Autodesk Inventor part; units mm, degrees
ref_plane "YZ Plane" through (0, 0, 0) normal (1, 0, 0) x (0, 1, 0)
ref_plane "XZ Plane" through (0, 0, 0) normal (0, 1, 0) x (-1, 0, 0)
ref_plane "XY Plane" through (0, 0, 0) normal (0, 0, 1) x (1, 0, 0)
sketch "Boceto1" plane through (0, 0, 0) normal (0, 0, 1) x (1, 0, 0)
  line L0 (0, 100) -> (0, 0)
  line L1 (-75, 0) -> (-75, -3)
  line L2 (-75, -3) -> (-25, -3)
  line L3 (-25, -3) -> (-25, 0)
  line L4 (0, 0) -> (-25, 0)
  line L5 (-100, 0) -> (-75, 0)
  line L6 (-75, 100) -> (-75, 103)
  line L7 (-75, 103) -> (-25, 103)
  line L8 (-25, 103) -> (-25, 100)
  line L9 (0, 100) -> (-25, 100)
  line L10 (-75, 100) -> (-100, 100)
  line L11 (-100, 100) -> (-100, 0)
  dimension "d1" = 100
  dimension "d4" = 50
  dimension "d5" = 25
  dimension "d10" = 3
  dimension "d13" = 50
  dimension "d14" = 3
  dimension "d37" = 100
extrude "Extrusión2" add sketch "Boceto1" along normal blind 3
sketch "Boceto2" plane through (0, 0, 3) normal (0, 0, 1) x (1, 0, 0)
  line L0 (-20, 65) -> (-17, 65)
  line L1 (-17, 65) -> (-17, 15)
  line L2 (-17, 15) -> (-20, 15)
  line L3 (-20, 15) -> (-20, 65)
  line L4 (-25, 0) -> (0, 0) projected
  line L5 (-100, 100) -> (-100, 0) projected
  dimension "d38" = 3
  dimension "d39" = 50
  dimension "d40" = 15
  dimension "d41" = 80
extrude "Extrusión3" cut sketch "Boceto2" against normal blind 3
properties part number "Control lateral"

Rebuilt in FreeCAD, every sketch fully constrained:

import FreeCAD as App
import Part
import Sketcher

doc = App.newDocument("Part")
body = doc.addObject("PartDesign::Body", "Body")

sketch1 = body.newObject("Sketcher::SketchObject", "Sketch")
sketch1.AttachmentSupport = (doc.getObject("XY_Plane"), [""])
sketch1.MapMode = "FlatFace"
sketch1.addGeometry([
    Part.LineSegment(App.Vector(0, 0, 0), App.Vector(0, 100, 0)),
    Part.LineSegment(App.Vector(0, 100, 0), App.Vector(-25, 100, 0)),
    Part.LineSegment(App.Vector(-25, 100, 0), App.Vector(-25, 103, 0)),
    Part.LineSegment(App.Vector(-25, 103, 0), App.Vector(-75, 103, 0)),
    Part.LineSegment(App.Vector(-75, 103, 0), App.Vector(-75, 100, 0)),
    Part.LineSegment(App.Vector(-75, 100, 0), App.Vector(-100, 100, 0)),
    Part.LineSegment(App.Vector(-100, 100, 0), App.Vector(-100, 0, 0)),
    Part.LineSegment(App.Vector(-100, 0, 0), App.Vector(-75, 0, 0)),
    Part.LineSegment(App.Vector(-75, 0, 0), App.Vector(-75, -3, 0)),
    Part.LineSegment(App.Vector(-75, -3, 0), App.Vector(-25, -3, 0)),
    Part.LineSegment(App.Vector(-25, -3, 0), App.Vector(-25, 0, 0)),
    Part.LineSegment(App.Vector(-25, 0, 0), App.Vector(0, 0, 0)),
], False)
sketch1.addConstraint([
    Sketcher.Constraint("Coincident", 0, 2, 1, 1),
    Sketcher.Constraint("Coincident", 1, 2, 2, 1),
    Sketcher.Constraint("Coincident", 2, 2, 3, 1),
    Sketcher.Constraint("Coincident", 3, 2, 4, 1),
    Sketcher.Constraint("Coincident", 4, 2, 5, 1),
    Sketcher.Constraint("Coincident", 5, 2, 6, 1),
    Sketcher.Constraint("Coincident", 6, 2, 7, 1),
    Sketcher.Constraint("Coincident", 7, 2, 8, 1),
    Sketcher.Constraint("Coincident", 8, 2, 9, 1),
    Sketcher.Constraint("Coincident", 9, 2, 10, 1),
    Sketcher.Constraint("Coincident", 10, 2, 11, 1),
    Sketcher.Constraint("Coincident", 11, 2, 0, 1),
    Sketcher.Constraint("Vertical", 0),
    Sketcher.Constraint("Horizontal", 1),
    Sketcher.Constraint("Vertical", 2),
    Sketcher.Constraint("Horizontal", 3),
    Sketcher.Constraint("Vertical", 4),
    Sketcher.Constraint("Horizontal", 5),
    Sketcher.Constraint("Vertical", 6),
    Sketcher.Constraint("Horizontal", 7),
    Sketcher.Constraint("Vertical", 8),
    Sketcher.Constraint("Horizontal", 9),
    Sketcher.Constraint("Vertical", 10),
    Sketcher.Constraint("Horizontal", 11),
    Sketcher.Constraint("Coincident", 11, 2, -1, 1),
    Sketcher.Constraint("PointOnObject", 6, 2, -1),
    Sketcher.Constraint("Horizontal", 1, 2, 4, 2),
    Sketcher.Constraint("Vertical", 4, 2, 7, 2),
    Sketcher.Constraint("Vertical", 2, 2, 9, 2),
    Sketcher.Constraint("Equal", 1, 5),
    Sketcher.Constraint("Equal", 4, 8),
    Sketcher.Constraint("DistanceX", 1, 2, 1, 1, 25.0),
    Sketcher.Constraint("DistanceX", 3, 2, 3, 1, 50.0),
    Sketcher.Constraint("DistanceY", 0, 1, 0, 2, 100.0),
    Sketcher.Constraint("DistanceY", 2, 1, 2, 2, 3.0),
])
pad1 = body.newObject("PartDesign::Pad", "Pad")
pad1.Profile = sketch1
pad1.Length = 3

sketch2 = body.newObject("Sketcher::SketchObject", "Sketch001")
sketch2.AttachmentSupport = (doc.getObject("XY_Plane"), [""])
sketch2.MapMode = "FlatFace"
sketch2.AttachmentOffset = App.Placement(App.Vector(0, 0, 3), App.Rotation())
sketch2.addGeometry([
    Part.LineSegment(App.Vector(-17, 65, 0), App.Vector(-20, 65, 0)),
    Part.LineSegment(App.Vector(-20, 65, 0), App.Vector(-20, 15, 0)),
    Part.LineSegment(App.Vector(-20, 15, 0), App.Vector(-17, 15, 0)),
    Part.LineSegment(App.Vector(-17, 15, 0), App.Vector(-17, 65, 0)),
], False)
sketch2.addConstraint([
    Sketcher.Constraint("Coincident", 0, 2, 1, 1),
    Sketcher.Constraint("Coincident", 1, 2, 2, 1),
    Sketcher.Constraint("Coincident", 2, 2, 3, 1),
    Sketcher.Constraint("Coincident", 3, 2, 0, 1),
    Sketcher.Constraint("Horizontal", 0),
    Sketcher.Constraint("Vertical", 1),
    Sketcher.Constraint("Horizontal", 2),
    Sketcher.Constraint("Vertical", 3),
    Sketcher.Constraint("DistanceX", 0, 2, 0, 1, 3.0),
    Sketcher.Constraint("DistanceY", 1, 2, 1, 1, 50.0),
    Sketcher.Constraint("DistanceY", -1, 1, 1, 2, 15.0),
    Sketcher.Constraint("DistanceX", 0, 2, -1, 1, 20.0),
])
pocket1 = body.newObject("PartDesign::Pocket", "Pocket")
pocket1.Profile = sketch2
pocket1.Length = 3

doc.recompute()
